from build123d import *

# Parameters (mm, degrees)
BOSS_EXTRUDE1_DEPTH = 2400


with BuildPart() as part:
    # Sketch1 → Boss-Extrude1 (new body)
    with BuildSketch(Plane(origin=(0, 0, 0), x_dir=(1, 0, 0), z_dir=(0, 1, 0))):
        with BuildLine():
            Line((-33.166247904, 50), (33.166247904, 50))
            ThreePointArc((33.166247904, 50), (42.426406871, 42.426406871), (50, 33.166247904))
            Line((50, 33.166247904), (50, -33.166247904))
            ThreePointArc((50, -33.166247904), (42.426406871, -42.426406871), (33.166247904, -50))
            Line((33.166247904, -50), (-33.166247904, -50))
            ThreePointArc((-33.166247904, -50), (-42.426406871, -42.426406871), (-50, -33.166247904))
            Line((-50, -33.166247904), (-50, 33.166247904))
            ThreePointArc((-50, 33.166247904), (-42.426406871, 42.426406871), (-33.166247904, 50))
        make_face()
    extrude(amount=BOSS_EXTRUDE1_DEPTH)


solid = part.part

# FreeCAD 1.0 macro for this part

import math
import FreeCAD as App
import Part
import Sketcher
from FreeCAD import Vector
Q = App.Units.Quantity

doc = App.newDocument("Part")
body = doc.addObject("PartDesign::Body", "Body")

# Sketch on XZ plane
sketch1 = body.newObject("Sketcher::SketchObject", "Sketch")
sketch1.AttachmentSupport = (doc.getObject("XZ_Plane"), [""])
sketch1.MapMode = "FlatFace"
sketch1.addGeometry([
    Part.LineSegment(Vector(33, -50, 0), Vector(-33, -50, 0)),  # 0
    Part.ArcOfCircle(Part.Circle(Vector(0, 0, 0), Vector(0, 0, 1), 60), math.radians(-146), math.radians(-124)),  # 1
    Part.LineSegment(Vector(-50, -33, 0), Vector(-50, 33, 0)),  # 2
    Part.ArcOfCircle(Part.Circle(Vector(0, 0, 0), Vector(0, 0, 1), 60), math.radians(124), math.radians(146)),  # 3
    Part.LineSegment(Vector(-33, 50, 0), Vector(33, 50, 0)),  # 4
    Part.ArcOfCircle(Part.Circle(Vector(0, 0, 0), Vector(0, 0, 1), 60), math.radians(34), math.radians(56)),  # 5
    Part.LineSegment(Vector(50, 33, 0), Vector(50, -33, 0)),  # 6
    Part.ArcOfCircle(Part.Circle(Vector(0, 0, 0), Vector(0, 0, 1), 60), math.radians(-56), math.radians(-34)),  # 7
], False)
sketch1.addConstraint([
    Sketcher.Constraint("Coincident", 0, 2, 1, 2),
    Sketcher.Constraint("Coincident", 1, 1, 2, 1),
    Sketcher.Constraint("Coincident", 2, 2, 3, 2),
    Sketcher.Constraint("Coincident", 3, 1, 4, 1),
    Sketcher.Constraint("Coincident", 4, 2, 5, 2),
    Sketcher.Constraint("Coincident", 5, 1, 6, 1),
    Sketcher.Constraint("Coincident", 6, 2, 7, 2),
    Sketcher.Constraint("Coincident", 7, 1, 0, 1),
    Sketcher.Constraint("Horizontal", 0),
    Sketcher.Constraint("Vertical", 2),
    Sketcher.Constraint("Horizontal", 4),
    Sketcher.Constraint("Vertical", 6),
    Sketcher.Constraint("Coincident", 1, 3, -1, 1),
    Sketcher.Constraint("Coincident", 3, 3, -1, 1),
    Sketcher.Constraint("Coincident", 5, 3, -1, 1),
    Sketcher.Constraint("Coincident", 7, 3, -1, 1),
    Sketcher.Constraint("Equal", 1, 3),
    Sketcher.Constraint("Equal", 3, 5),
    Sketcher.Constraint("Equal", 5, 7),
    Sketcher.Constraint("Horizontal", 2, 2, 5, 1),
    Sketcher.Constraint("Vertical", 0, 2, 3, 1),
    Sketcher.Constraint("Equal", 4, 2),
    Sketcher.Constraint("Radius", 1, Q("60 mm")),
    Sketcher.Constraint("DistanceY", 0, 2, -1, 1, Q("50 mm")),
])
pad1 = body.newObject("PartDesign::Pad", "Pad")
pad1.Profile = sketch1
pad1.Length = 2400
pad1.Reversed = True

doc.recompute()
